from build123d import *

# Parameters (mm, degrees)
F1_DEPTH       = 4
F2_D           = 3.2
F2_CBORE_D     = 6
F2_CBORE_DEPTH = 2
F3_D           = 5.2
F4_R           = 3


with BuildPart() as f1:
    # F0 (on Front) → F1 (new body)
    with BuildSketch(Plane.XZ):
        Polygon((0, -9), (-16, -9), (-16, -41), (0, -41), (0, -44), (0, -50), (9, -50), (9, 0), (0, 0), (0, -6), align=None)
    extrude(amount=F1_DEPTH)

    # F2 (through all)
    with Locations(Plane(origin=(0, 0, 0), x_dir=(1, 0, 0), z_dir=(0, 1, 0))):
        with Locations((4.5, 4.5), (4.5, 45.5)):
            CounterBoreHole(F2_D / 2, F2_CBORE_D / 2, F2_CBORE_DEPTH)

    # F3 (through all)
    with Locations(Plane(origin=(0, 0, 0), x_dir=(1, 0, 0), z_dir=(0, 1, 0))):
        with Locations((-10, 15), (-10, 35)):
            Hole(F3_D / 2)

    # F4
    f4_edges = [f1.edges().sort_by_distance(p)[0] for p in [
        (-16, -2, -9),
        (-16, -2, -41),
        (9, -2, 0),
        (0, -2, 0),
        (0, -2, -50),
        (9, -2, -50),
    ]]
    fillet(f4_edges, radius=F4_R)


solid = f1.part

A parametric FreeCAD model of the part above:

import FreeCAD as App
import Part
import Sketcher
from FreeCAD import Vector
Q = App.Units.Quantity


def edges_at(feature, points):
    """Names of the edges that pass closest to the given points."""
    edges = feature.Shape.Edges
    near = lambda p: min(range(len(edges)), key=lambda i: edges[i].distToShape(Part.Vertex(*p))[0])
    return sorted({f"Edge{near(p) + 1}" for p in points})


def add_polygon(sketch, points):
    """Adds a closed chain of lines whose ends are joined by coincident constraints."""
    first, n = sketch.GeometryCount, len(points)
    for a, b in zip(points, points[1:] + points[:1]):
        sketch.addGeometry(Part.LineSegment(App.Vector(*a, 0), App.Vector(*b, 0)), False)
    for i in range(n):
        sketch.addConstraint(Sketcher.Constraint("Coincident", first + i, 2, first + (i + 1) % n, 1))

doc = App.newDocument("Part")
body = doc.addObject("PartDesign::Body", "Body")

# Sketch on XZ plane
sketch1 = doc.addObject("Sketcher::SketchObject", "Sketch")
body.addObject(sketch1)
sketch1.AttachmentSupport = (doc.XZ_Plane, [""])
sketch1.MapMode = "FlatFace"
add_polygon(sketch1, [(0, -9), (-16, -9), (-16, -41), (0, -41), (0, -50), (9, -50), (9, 0), (0, 0)])  # lines 0-7
sketch1.addConstraint(Sketcher.Constraint("Horizontal", 0))
sketch1.addConstraint(Sketcher.Constraint("Vertical", 1))
sketch1.addConstraint(Sketcher.Constraint("Horizontal", 2))
sketch1.addConstraint(Sketcher.Constraint("Vertical", 3))
sketch1.addConstraint(Sketcher.Constraint("Horizontal", 4))
sketch1.addConstraint(Sketcher.Constraint("Vertical", 5))
sketch1.addConstraint(Sketcher.Constraint("Horizontal", 6))
sketch1.addConstraint(Sketcher.Constraint("Vertical", 7))
sketch1.addConstraint(Sketcher.Constraint("Coincident", 6, 2, -1, 1))
sketch1.addConstraint(Sketcher.Constraint("PointOnObject", 2, 2, -2))
sketch1.addConstraint(Sketcher.Constraint("Equal", 6, 3))
sketch1.addConstraint(Sketcher.Constraint("Equal", 3, 7))
sketch1.addConstraint(Sketcher.Constraint("DistanceX", 0, 2, 0, 1, Q("16 mm")))
sketch1.addConstraint(Sketcher.Constraint("DistanceX", 4, 1, 4, 2, Q("9 mm")))
sketch1.addConstraint(Sketcher.Constraint("DistanceY", 1, 2, 1, 1, Q("32 mm")))
pad1 = doc.addObject("PartDesign::Pad", "Pad")
body.addObject(pad1)
pad1.Profile = sketch1
pad1.Length = 4

# Sketch on XZ plane
sketch2 = doc.addObject("Sketcher::SketchObject", "Sketch001")
body.addObject(sketch2)
sketch2.AttachmentSupport = (doc.XZ_Plane, [""])
sketch2.MapMode = "FlatFace"
sketch2.addGeometry(Part.Circle(Vector(4.5, -4.5, 0), Vector(0, 0, 1), 1.6), False)
sketch2.addGeometry(Part.Circle(Vector(4.5, -45.5, 0), Vector(0, 0, 1), 1.6), False)
sketch2.addConstraint(Sketcher.Constraint("Equal", 0, 1))
sketch2.addConstraint(Sketcher.Constraint("Vertical", 0, 3, 1, 3))
sketch2.addConstraint(Sketcher.Constraint("Diameter", 0, Q("3.2 mm")))
sketch2.addConstraint(Sketcher.Constraint("DistanceY", 1, 3, 0, 3, Q("41 mm")))
sketch2.addConstraint(Sketcher.Constraint("DistanceX", -1, 1, 0, 3, Q("4.5 mm")))
sketch2.addConstraint(Sketcher.Constraint("DistanceY", 0, 3, -1, 1, Q("4.5 mm")))
doc.recompute()
hole = doc.addObject("PartDesign::Hole", "Hole")
body.addObject(hole)
hole.Profile = sketch2
hole.ThreadType = "None"
hole.Diameter = 3.2
hole.DepthType = "ThroughAll"
hole.HoleCutType = "Counterbore"
hole.HoleCutDiameter = 6
hole.HoleCutDepth = 2
hole.Reversed = True

# Sketch on XZ plane
sketch3 = doc.addObject("Sketcher::SketchObject", "Sketch002")
body.addObject(sketch3)
sketch3.AttachmentSupport = (doc.XZ_Plane, [""])
sketch3.MapMode = "FlatFace"
sketch3.addGeometry(Part.Circle(Vector(-10, -15, 0), Vector(0, 0, 1), 2.6), False)
sketch3.addGeometry(Part.Circle(Vector(-10, -35, 0), Vector(0, 0, 1), 2.6), False)
sketch3.addConstraint(Sketcher.Constraint("Equal", 0, 1))
sketch3.addConstraint(Sketcher.Constraint("Vertical", 0, 3, 1, 3))
sketch3.addConstraint(Sketcher.Constraint("Diameter", 0, Q("5.2 mm")))
sketch3.addConstraint(Sketcher.Constraint("DistanceX", 0, 3, -1, 1, Q("10 mm")))
sketch3.addConstraint(Sketcher.Constraint("DistanceY", 0, 3, -1, 1, Q("15 mm")))
sketch3.addConstraint(Sketcher.Constraint("DistanceY", 1, 3, -1, 1, Q("35 mm")))
doc.recompute()
hole2 = doc.addObject("PartDesign::Hole", "Hole001")
body.addObject(hole2)
hole2.Profile = sketch3
hole2.ThreadType = "None"
hole2.Diameter = 5.2
hole2.DepthType = "ThroughAll"
hole2.Reversed = True
doc.recompute()

fillet = doc.addObject("PartDesign::Fillet", "Fillet")
body.addObject(fillet)
fillet.Base = (hole2, edges_at(hole2, [
    (-16, -2, -9),
    (-16, -2, -41),
    (9, -2, 0),
    (0, -2, 0),
    (0, -2, -50),
    (9, -2, -50),
]))
fillet.Radius = 3

doc.recompute()
